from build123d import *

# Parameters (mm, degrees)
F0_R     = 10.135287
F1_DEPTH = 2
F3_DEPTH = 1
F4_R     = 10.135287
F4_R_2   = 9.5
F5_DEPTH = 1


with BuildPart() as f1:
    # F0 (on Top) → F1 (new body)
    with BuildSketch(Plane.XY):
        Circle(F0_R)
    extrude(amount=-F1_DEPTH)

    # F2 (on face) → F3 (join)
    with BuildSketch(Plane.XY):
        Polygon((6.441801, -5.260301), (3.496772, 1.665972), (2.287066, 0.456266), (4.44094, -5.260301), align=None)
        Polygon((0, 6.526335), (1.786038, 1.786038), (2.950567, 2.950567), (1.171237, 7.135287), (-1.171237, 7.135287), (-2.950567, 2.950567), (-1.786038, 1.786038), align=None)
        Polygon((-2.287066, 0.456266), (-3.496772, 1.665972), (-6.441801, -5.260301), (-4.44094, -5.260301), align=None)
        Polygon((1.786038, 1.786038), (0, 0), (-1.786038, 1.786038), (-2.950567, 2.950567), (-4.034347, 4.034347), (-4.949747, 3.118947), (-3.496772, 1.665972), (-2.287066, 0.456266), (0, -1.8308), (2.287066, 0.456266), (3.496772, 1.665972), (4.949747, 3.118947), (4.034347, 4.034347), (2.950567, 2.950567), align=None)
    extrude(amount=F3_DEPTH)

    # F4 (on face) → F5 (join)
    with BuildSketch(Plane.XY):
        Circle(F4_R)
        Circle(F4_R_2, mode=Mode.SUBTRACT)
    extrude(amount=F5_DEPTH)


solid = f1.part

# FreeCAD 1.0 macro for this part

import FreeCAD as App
import Part
import Sketcher

doc = App.newDocument("Part")
params = doc.addObject("Spreadsheet::Sheet", "Params")
for row, (alias, value) in enumerate([
    ("pad1_length", "2 mm"),
    ("pad2_length", "1 mm"),
    ("sketch3_diameter", "19 mm"),
    ("pad3_length", "1 mm"),
], start=1):
    params.set(f"A{row}", alias)
    params.set(f"B{row}", "=" + value)
    params.setAlias(f"B{row}", alias)

body = doc.addObject("PartDesign::Body", "Body")

sketch1 = doc.addObject("Sketcher::SketchObject", "Sketch")
body.addObject(sketch1)
sketch1.AttachmentSupport = (doc.XY_Plane, [""])
sketch1.MapMode = "FlatFace"
sketch1.addGeometry(Part.Circle(App.Vector(0, 0, 0), App.Vector(0, 0, 1), 10), False)
sketch1.addConstraint(Sketcher.Constraint("Coincident", 0, 3, -1, 1))
sketch1.addConstraint(Sketcher.Constraint("Diameter", 0, 20.270574))
pad1 = doc.addObject("PartDesign::Pad", "Pad")
body.addObject(pad1)
pad1.Profile = sketch1
pad1.setExpression("Length", "Params.pad1_length")
pad1.Reversed = True

sketch2 = doc.addObject("Sketcher::SketchObject", "Sketch001")
body.addObject(sketch2)
sketch2.AttachmentSupport = (doc.XY_Plane, [""])
sketch2.MapMode = "FlatFace"
sketch2.addGeometry(Part.LineSegment(App.Vector(6.4, -5.3, 0), App.Vector(3.5, 1.7, 0)), False)
sketch2.addGeometry(Part.LineSegment(App.Vector(3.5, 1.7, 0), App.Vector(4.9, 3.1, 0)), False)
sketch2.addGeometry(Part.LineSegment(App.Vector(4.9, 3.1, 0), App.Vector(4, 4, 0)), False)
sketch2.addGeometry(Part.LineSegment(App.Vector(4, 4, 0), App.Vector(3, 3, 0)), False)
sketch2.addGeometry(Part.LineSegment(App.Vector(3, 3, 0), App.Vector(1.2, 7.1, 0)), False)
sketch2.addGeometry(Part.LineSegment(App.Vector(1.2, 7.1, 0), App.Vector(-1.2, 7.1, 0)), False)
sketch2.addGeometry(Part.LineSegment(App.Vector(-1.2, 7.1, 0), App.Vector(-3, 3, 0)), False)
sketch2.addGeometry(Part.LineSegment(App.Vector(-3, 3, 0), App.Vector(-4, 4, 0)), False)
sketch2.addGeometry(Part.LineSegment(App.Vector(-4, 4, 0), App.Vector(-4.9, 3.1, 0)), False)
sketch2.addGeometry(Part.LineSegment(App.Vector(-4.9, 3.1, 0), App.Vector(-3.5, 1.7, 0)), False)
sketch2.addGeometry(Part.LineSegment(App.Vector(-3.5, 1.7, 0), App.Vector(-6.4, -5.3, 0)), False)
sketch2.addGeometry(Part.LineSegment(App.Vector(-6.4, -5.3, 0), App.Vector(-4.4, -5.3, 0)), False)
sketch2.addGeometry(Part.LineSegment(App.Vector(-4.4, -5.3, 0), App.Vector(-2.3, 0.5, 0)), False)
sketch2.addGeometry(Part.LineSegment(App.Vector(-2.3, 0.5, 0), App.Vector(0, -1.8, 0)), False)
sketch2.addGeometry(Part.LineSegment(App.Vector(0, -1.8, 0), App.Vector(2.3, 0.5, 0)), False)
sketch2.addGeometry(Part.LineSegment(App.Vector(2.3, 0.5, 0), App.Vector(4.4, -5.3, 0)), False)
sketch2.addGeometry(Part.LineSegment(App.Vector(4.4, -5.3, 0), App.Vector(6.4, -5.3, 0)), False)
sketch2.addGeometry(Part.LineSegment(App.Vector(1.8, 1.8, 0), App.Vector(0, 0, 0)), False)
sketch2.addGeometry(Part.LineSegment(App.Vector(0, 0, 0), App.Vector(-1.8, 1.8, 0)), False)
sketch2.addGeometry(Part.LineSegment(App.Vector(-1.8, 1.8, 0), App.Vector(0, 6.5, 0)), False)
sketch2.addGeometry(Part.LineSegment(App.Vector(0, 6.5, 0), App.Vector(1.8, 1.8, 0)), False)
sketch2.addConstraint(Sketcher.Constraint("Coincident", 0, 2, 1, 1))
sketch2.addConstraint(Sketcher.Constraint("Coincident", 1, 2, 2, 1))
sketch2.addConstraint(Sketcher.Constraint("Coincident", 2, 2, 3, 1))
sketch2.addConstraint(Sketcher.Constraint("Coincident", 3, 2, 4, 1))
sketch2.addConstraint(Sketcher.Constraint("Coincident", 4, 2, 5, 1))
sketch2.addConstraint(Sketcher.Constraint("Coincident", 5, 2, 6, 1))
sketch2.addConstraint(Sketcher.Constraint("Coincident", 6, 2, 7, 1))
sketch2.addConstraint(Sketcher.Constraint("Coincident", 7, 2, 8, 1))
sketch2.addConstraint(Sketcher.Constraint("Coincident", 8, 2, 9, 1))
sketch2.addConstraint(Sketcher.Constraint("Coincident", 9, 2, 10, 1))
sketch2.addConstraint(Sketcher.Constraint("Coincident", 10, 2, 11, 1))
sketch2.addConstraint(Sketcher.Constraint("Coincident", 11, 2, 12, 1))
sketch2.addConstraint(Sketcher.Constraint("Coincident", 12, 2, 13, 1))
sketch2.addConstraint(Sketcher.Constraint("Coincident", 13, 2, 14, 1))
sketch2.addConstraint(Sketcher.Constraint("Coincident", 14, 2, 15, 1))
sketch2.addConstraint(Sketcher.Constraint("Coincident", 15, 2, 16, 1))
sketch2.addConstraint(Sketcher.Constraint("Coincident", 16, 2, 0, 1))
sketch2.addConstraint(Sketcher.Constraint("Coincident", 17, 2, 18, 1))
sketch2.addConstraint(Sketcher.Constraint("Coincident", 18, 2, 19, 1))
sketch2.addConstraint(Sketcher.Constraint("Coincident", 19, 2, 20, 1))
sketch2.addConstraint(Sketcher.Constraint("Coincident", 20, 2, 17, 1))
sketch2.addConstraint(Sketcher.Constraint("Horizontal", 5))
sketch2.addConstraint(Sketcher.Constraint("Horizontal", 11))
sketch2.addConstraint(Sketcher.Constraint("Horizontal", 16))
sketch2.addConstraint(Sketcher.Constraint("Coincident", 17, 2, -1, 1))
sketch2.addConstraint(Sketcher.Constraint("Symmetric", 3, 2, 6, 2, -2))
sketch2.addConstraint(Sketcher.Constraint("Symmetric", 2, 2, 7, 2, -2))
sketch2.addConstraint(Sketcher.Constraint("Symmetric", 1, 2, 8, 2, -2))
sketch2.addConstraint(Sketcher.Constraint("Symmetric", 0, 2, 9, 2, -2))
sketch2.addConstraint(Sketcher.Constraint("Symmetric", 12, 2, 14, 2, -2))
sketch2.addConstraint(Sketcher.Constraint("Symmetric", 11, 2, 15, 2, -2))
sketch2.addConstraint(Sketcher.Constraint("Symmetric", 18, 2, 20, 2, -2))
sketch2.addConstraint(Sketcher.Constraint("PointOnObject", 13, 2, -2))
sketch2.addConstraint(Sketcher.Constraint("PointOnObject", 19, 2, -2))
sketch2.addConstraint(Sketcher.Constraint("Perpendicular", 1, 2))
sketch2.addConstraint(Sketcher.Constraint("Perpendicular", 2, 3))
sketch2.addConstraint(Sketcher.Constraint("Parallel", 0, 4))
sketch2.addConstraint(Sketcher.Constraint("Perpendicular", 3, 7))
sketch2.addConstraint(Sketcher.Constraint("Parallel", 6, 10))
sketch2.addConstraint(Sketcher.Constraint("Parallel", 9, 13))
sketch2.addConstraint(Sketcher.Constraint("Parallel", 14, 17))
sketch2.addConstraint(Sketcher.Constraint("Parallel", 12, 19))
sketch2.addConstraint(Sketcher.Constraint("Equal", 11, 16))
sketch2.addConstraint(Sketcher.Constraint("Distance", 13, 3.2344))
sketch2.addConstraint(Sketcher.Constraint("DistanceX", 11, 1, 11, 2, 2.000861))
sketch2.addConstraint(Sketcher.Constraint("DistanceX", 10, 2, -1, 1, 6.441801))
sketch2.addConstraint(Sketcher.Constraint("DistanceY", 10, 2, -1, 1, 5.260301))
sketch2.addConstraint(Sketcher.Constraint("DistanceY", 13, 2, -1, 1, 1.8308))
sketch2.addConstraint(Sketcher.Constraint("DistanceX", 2, 2, 1, 2, 0.9154))
sketch2.addConstraint(Sketcher.Constraint("DistanceX", 6, 2, 12, 2, 0.663501))
sketch2.addConstraint(Sketcher.Constraint("DistanceY", 12, 2, 6, 2, 2.494301))
sketch2.addConstraint(Sketcher.Constraint("Distance", 17, 2.525839))
sketch2.addConstraint(Sketcher.Constraint("DistanceX", 5, 2, 5, 1, 2.342474))
sketch2.addConstraint(Sketcher.Constraint("DistanceX", -1, 1, 0, 2, 3.496772))
sketch2.addConstraint(Sketcher.Constraint("DistanceX", 3, 2, 2, 2, 1.08378))
pad2 = doc.addObject("PartDesign::Pad", "Pad001")
body.addObject(pad2)
pad2.Profile = sketch2
pad2.setExpression("Length", "Params.pad2_length")

sketch3 = doc.addObject("Sketcher::SketchObject", "Sketch002")
body.addObject(sketch3)
sketch3.AttachmentSupport = (doc.XY_Plane, [""])
sketch3.MapMode = "FlatFace"
sketch3.addGeometry(Part.Circle(App.Vector(0, 0, 0), App.Vector(0, 0, 1), 10), False)
sketch3.addGeometry(Part.Circle(App.Vector(0, 0, 0), App.Vector(0, 0, 1), 10), False)
sketch3.addConstraint(Sketcher.Constraint("Coincident", 0, 3, -1, 1))
sketch3.addConstraint(Sketcher.Constraint("Coincident", 1, 3, -1, 1))
sketch3.addConstraint(Sketcher.Constraint("Diameter", 1, 19.0))
sketch3.addConstraint(Sketcher.Constraint("Diameter", 0, 20.270574))
sketch3.setExpression("Constraints[2]", "Params.sketch3_diameter")
pad3 = doc.addObject("PartDesign::Pad", "Pad002")
body.addObject(pad3)
pad3.Profile = sketch3
pad3.setExpression("Length", "Params.pad3_length")

doc.recompute()
